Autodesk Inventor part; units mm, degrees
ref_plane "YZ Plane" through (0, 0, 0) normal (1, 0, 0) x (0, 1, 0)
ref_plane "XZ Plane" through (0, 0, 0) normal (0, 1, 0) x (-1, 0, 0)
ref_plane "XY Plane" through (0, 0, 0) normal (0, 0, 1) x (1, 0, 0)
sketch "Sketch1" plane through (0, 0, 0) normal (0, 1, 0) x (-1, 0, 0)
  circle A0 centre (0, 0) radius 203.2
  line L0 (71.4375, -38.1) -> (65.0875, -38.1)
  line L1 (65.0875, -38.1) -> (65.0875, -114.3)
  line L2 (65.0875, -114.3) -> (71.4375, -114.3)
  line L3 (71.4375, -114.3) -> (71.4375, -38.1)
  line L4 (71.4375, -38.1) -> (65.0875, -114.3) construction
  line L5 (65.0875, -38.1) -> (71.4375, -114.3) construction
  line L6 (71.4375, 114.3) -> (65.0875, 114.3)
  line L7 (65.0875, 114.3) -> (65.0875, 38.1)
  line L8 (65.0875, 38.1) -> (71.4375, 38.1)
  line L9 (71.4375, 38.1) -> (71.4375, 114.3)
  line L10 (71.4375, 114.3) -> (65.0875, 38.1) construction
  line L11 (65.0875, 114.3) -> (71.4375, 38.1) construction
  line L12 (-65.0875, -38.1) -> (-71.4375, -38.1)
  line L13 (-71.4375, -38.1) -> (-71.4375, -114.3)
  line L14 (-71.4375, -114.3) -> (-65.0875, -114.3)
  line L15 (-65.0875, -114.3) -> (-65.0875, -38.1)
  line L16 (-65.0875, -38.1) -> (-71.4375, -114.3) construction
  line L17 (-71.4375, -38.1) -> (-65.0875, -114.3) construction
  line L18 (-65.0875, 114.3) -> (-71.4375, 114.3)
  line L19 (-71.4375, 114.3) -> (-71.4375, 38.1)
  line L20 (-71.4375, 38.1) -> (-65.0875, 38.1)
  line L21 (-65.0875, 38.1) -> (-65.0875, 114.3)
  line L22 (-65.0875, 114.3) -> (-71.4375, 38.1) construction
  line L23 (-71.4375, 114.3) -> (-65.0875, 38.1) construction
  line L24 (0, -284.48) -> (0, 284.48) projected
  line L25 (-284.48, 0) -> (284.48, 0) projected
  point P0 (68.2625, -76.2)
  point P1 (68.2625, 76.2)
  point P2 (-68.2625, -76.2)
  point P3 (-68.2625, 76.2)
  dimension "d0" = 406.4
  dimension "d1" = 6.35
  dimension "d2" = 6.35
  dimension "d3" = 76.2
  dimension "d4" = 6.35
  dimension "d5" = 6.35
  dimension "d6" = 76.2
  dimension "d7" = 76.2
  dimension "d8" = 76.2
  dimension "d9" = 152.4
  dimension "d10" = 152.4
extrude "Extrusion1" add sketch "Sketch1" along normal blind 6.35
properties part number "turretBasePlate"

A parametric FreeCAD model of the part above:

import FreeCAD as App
import Part
import Sketcher
from FreeCAD import Vector
Q = App.Units.Quantity


def add_polygon(sketch, points):
    """Adds a closed chain of lines whose ends are joined by coincident constraints."""
    first, n = sketch.GeometryCount, len(points)
    for a, b in zip(points, points[1:] + points[:1]):
        sketch.addGeometry(Part.LineSegment(App.Vector(*a, 0), App.Vector(*b, 0)), False)
    for i in range(n):
        sketch.addConstraint(Sketcher.Constraint("Coincident", first + i, 2, first + (i + 1) % n, 1))

doc = App.newDocument("Part")
body = doc.addObject("PartDesign::Body", "Body")

# Sketch on XZ plane
sketch1 = doc.addObject("Sketcher::SketchObject", "Sketch")
body.addObject(sketch1)
sketch1.AttachmentSupport = (doc.XZ_Plane, [""])
sketch1.MapMode = "FlatFace"
sketch1.addGeometry(Part.Circle(Vector(0, 0, 0), Vector(0, 0, 1), 203), False)  # 0
add_polygon(sketch1, [(-65, 114), (-71, 114), (-71, 38), (-65, 38)])  # lines 1-4
add_polygon(sketch1, [(-71, -38), (-71, -114), (-65, -114), (-65, -38)])  # lines 5-8
add_polygon(sketch1, [(65, 114), (65, 38), (71, 38), (71, 114)])  # lines 9-12
add_polygon(sketch1, [(65, -114), (71, -114), (71, -38), (65, -38)])  # lines 13-16
sketch1.addConstraint(Sketcher.Constraint("Horizontal", 1))
sketch1.addConstraint(Sketcher.Constraint("Vertical", 2))
sketch1.addConstraint(Sketcher.Constraint("Horizontal", 3))
sketch1.addConstraint(Sketcher.Constraint("Vertical", 4))
sketch1.addConstraint(Sketcher.Constraint("Vertical", 5))
sketch1.addConstraint(Sketcher.Constraint("Horizontal", 6))
sketch1.addConstraint(Sketcher.Constraint("Vertical", 7))
sketch1.addConstraint(Sketcher.Constraint("Horizontal", 8))
sketch1.addConstraint(Sketcher.Constraint("Vertical", 9))
sketch1.addConstraint(Sketcher.Constraint("Horizontal", 10))
sketch1.addConstraint(Sketcher.Constraint("Vertical", 11))
sketch1.addConstraint(Sketcher.Constraint("Horizontal", 12))
sketch1.addConstraint(Sketcher.Constraint("Horizontal", 13))
sketch1.addConstraint(Sketcher.Constraint("Vertical", 14))
sketch1.addConstraint(Sketcher.Constraint("Horizontal", 15))
sketch1.addConstraint(Sketcher.Constraint("Vertical", 16))
sketch1.addConstraint(Sketcher.Constraint("Coincident", 0, 3, -1, 1))
sketch1.addConstraint(Sketcher.Constraint("Symmetric", 7, 2, 9, 2, -1, 1))
sketch1.addConstraint(Sketcher.Constraint("Symmetric", 5, 2, 11, 2, -1, 1))
sketch1.addConstraint(Sketcher.Constraint("Symmetric", 1, 2, 13, 2, -1, 1))
sketch1.addConstraint(Sketcher.Constraint("Symmetric", 3, 2, 15, 2, -1, 1))
sketch1.addConstraint(Sketcher.Constraint("Symmetric", 3, 2, 9, 2, -2))
sketch1.addConstraint(Sketcher.Constraint("Symmetric", 1, 2, 11, 2, -2))
sketch1.addConstraint(Sketcher.Constraint("Diameter", 0, Q("16 in")))
sketch1.addConstraint(Sketcher.Constraint("DistanceY", 2, 2, 2, 1, Q("3 in")))
sketch1.addConstraint(Sketcher.Constraint("DistanceY", 5, 2, 2, 2, Q("6 in")))
sketch1.addConstraint(Sketcher.Constraint("DistanceX", 1, 2, 1, 1, Q("0.25 in")))
sketch1.addConstraint(Sketcher.Constraint("DistanceX", 1, 2, -1, 1, Q("2.8125 in")))
pad1 = doc.addObject("PartDesign::Pad", "Pad")
body.addObject(pad1)
pad1.Profile = sketch1
pad1.Length = Q("0.25 in")
pad1.Reversed = True

doc.recompute()
